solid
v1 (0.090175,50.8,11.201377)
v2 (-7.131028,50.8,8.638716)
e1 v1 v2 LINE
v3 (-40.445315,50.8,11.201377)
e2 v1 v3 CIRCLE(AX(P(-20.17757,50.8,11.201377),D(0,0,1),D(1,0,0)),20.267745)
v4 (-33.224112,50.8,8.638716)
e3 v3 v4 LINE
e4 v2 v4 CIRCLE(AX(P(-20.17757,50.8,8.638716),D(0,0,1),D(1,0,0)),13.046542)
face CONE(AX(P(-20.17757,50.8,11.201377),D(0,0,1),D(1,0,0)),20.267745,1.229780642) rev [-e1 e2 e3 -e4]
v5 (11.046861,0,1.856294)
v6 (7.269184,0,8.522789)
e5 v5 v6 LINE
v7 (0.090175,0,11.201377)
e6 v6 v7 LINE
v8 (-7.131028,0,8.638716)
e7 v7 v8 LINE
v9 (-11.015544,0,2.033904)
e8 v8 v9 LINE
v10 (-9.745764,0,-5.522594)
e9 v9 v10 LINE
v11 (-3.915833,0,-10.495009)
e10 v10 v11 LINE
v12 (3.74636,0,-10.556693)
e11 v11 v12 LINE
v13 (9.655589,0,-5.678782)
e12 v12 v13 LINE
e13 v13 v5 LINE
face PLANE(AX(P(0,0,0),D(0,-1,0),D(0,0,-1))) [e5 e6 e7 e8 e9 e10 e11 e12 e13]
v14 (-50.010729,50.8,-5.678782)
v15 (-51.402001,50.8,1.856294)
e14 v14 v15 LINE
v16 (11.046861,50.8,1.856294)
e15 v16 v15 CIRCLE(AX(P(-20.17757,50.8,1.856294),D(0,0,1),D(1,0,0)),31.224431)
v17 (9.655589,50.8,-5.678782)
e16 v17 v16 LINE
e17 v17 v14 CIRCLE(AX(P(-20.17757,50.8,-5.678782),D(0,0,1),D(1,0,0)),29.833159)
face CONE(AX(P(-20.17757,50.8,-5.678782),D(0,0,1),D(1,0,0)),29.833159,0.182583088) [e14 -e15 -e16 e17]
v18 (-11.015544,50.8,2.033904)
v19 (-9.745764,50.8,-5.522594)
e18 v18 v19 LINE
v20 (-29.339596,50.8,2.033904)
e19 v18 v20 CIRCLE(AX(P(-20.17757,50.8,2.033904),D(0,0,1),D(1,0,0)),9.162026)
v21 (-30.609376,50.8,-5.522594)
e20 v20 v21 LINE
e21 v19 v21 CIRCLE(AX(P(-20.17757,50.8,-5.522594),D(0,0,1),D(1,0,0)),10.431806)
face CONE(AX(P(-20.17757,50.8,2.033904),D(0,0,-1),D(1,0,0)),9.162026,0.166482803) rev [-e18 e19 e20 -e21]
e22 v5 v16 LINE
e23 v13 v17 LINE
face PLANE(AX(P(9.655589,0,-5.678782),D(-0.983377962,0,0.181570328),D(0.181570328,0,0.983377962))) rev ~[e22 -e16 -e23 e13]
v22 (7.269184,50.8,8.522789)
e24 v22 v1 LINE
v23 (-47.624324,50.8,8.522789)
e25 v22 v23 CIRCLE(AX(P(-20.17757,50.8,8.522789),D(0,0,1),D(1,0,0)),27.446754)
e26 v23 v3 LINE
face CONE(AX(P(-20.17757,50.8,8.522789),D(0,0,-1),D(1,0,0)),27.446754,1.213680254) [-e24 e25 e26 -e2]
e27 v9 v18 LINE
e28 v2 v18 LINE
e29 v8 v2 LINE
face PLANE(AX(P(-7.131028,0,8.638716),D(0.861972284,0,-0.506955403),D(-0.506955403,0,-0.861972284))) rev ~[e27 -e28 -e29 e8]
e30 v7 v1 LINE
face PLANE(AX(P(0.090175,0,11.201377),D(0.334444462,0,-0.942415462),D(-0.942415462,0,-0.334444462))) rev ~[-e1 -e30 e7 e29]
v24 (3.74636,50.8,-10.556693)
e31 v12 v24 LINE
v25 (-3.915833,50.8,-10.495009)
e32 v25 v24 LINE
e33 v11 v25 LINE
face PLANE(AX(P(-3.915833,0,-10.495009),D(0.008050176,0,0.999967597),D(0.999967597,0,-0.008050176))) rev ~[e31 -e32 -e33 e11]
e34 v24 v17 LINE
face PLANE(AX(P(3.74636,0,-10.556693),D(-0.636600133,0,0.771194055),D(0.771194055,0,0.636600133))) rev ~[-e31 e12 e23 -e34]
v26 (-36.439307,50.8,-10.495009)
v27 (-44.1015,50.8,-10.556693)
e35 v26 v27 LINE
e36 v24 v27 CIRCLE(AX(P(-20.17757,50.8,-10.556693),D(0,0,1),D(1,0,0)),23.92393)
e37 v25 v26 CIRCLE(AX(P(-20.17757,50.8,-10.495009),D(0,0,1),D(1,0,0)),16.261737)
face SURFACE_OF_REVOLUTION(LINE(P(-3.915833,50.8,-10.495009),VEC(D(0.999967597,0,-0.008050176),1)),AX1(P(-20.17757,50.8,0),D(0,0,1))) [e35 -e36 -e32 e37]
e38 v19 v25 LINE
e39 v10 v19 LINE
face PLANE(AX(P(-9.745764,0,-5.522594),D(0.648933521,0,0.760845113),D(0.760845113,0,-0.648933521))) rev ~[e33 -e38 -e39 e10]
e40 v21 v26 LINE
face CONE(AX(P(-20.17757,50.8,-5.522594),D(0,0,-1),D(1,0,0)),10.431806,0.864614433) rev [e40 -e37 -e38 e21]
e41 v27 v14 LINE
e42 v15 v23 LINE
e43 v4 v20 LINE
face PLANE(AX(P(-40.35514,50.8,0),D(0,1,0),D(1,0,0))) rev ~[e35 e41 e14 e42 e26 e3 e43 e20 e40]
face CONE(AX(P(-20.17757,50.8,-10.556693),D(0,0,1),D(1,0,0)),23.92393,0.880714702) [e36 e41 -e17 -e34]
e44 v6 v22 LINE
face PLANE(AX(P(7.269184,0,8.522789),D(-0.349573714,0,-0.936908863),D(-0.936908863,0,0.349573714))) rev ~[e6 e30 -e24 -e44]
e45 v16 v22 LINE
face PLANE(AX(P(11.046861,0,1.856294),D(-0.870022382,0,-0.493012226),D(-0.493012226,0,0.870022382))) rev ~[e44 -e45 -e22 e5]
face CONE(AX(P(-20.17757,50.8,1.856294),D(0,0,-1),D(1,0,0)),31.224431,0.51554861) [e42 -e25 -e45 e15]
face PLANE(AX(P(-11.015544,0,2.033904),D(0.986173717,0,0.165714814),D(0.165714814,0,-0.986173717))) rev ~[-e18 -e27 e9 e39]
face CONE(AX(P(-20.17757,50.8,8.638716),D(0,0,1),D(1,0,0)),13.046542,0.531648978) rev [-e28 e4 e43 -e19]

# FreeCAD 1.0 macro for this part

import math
import FreeCAD as App
import Part
import Sketcher

V = App.Vector
Q = App.Units.Quantity

doc = App.newDocument("Part")
body = doc.addObject("PartDesign::Body", "Body")

# Sketch on XZ plane
sketch1 = body.newObject("Sketcher::SketchObject", "Sketch")
sketch1.AttachmentSupport = (doc.getObject("XZ_Plane"), [""])
sketch1.MapMode = "FlatFace"
sketch1.addGeometry(Part.LineSegment(V(11.046861, 1.856294, 0), V(7.269184, 8.522789, 0)), False)
sketch1.addGeometry(Part.LineSegment(V(7.269184, 8.522789, 0), V(0.090175, 11.201377, 0)), False)
sketch1.addGeometry(Part.LineSegment(V(0.090175, 11.201377, 0), V(-7.131028, 8.638716, 0)), False)
sketch1.addGeometry(Part.LineSegment(V(-7.131028, 8.638716, 0), V(-11.015544, 2.033904, 0)), False)
sketch1.addGeometry(Part.LineSegment(V(-11.015544, 2.033904, 0), V(-9.745764, -5.522594, 0)), False)
sketch1.addGeometry(Part.LineSegment(V(-9.745764, -5.522594, 0), V(-3.915833, -10.495009, 0)), False)
sketch1.addGeometry(Part.LineSegment(V(-3.915833, -10.495009, 0), V(3.74636, -10.556693, 0)), False)
sketch1.addGeometry(Part.LineSegment(V(3.74636, -10.556693, 0), V(9.655589, -5.678782, 0)), False)
sketch1.addGeometry(Part.LineSegment(V(9.655589, -5.678782, 0), V(11.046861, 1.856294, 0)), False)
sketch1.addConstraint(Sketcher.Constraint("Coincident", 0, 2, 1, 1))
sketch1.addConstraint(Sketcher.Constraint("Coincident", 1, 2, 2, 1))
sketch1.addConstraint(Sketcher.Constraint("Coincident", 2, 2, 3, 1))
sketch1.addConstraint(Sketcher.Constraint("Coincident", 3, 2, 4, 1))
sketch1.addConstraint(Sketcher.Constraint("Coincident", 4, 2, 5, 1))
sketch1.addConstraint(Sketcher.Constraint("Coincident", 5, 2, 6, 1))
sketch1.addConstraint(Sketcher.Constraint("Coincident", 6, 2, 7, 1))
sketch1.addConstraint(Sketcher.Constraint("Coincident", 7, 2, 8, 1))
sketch1.addConstraint(Sketcher.Constraint("Coincident", 8, 2, 0, 1))
sketch1.addConstraint(Sketcher.Constraint("Equal", 0, 1))
sketch1.addConstraint(Sketcher.Constraint("Equal", 1, 2))
sketch1.addConstraint(Sketcher.Constraint("Equal", 2, 3))
sketch1.addConstraint(Sketcher.Constraint("Equal", 3, 4))
sketch1.addConstraint(Sketcher.Constraint("Equal", 4, 5))
sketch1.addConstraint(Sketcher.Constraint("Equal", 5, 6))
sketch1.addConstraint(Sketcher.Constraint("Equal", 6, 7))
sketch1.addConstraint(Sketcher.Constraint("Equal", 7, 8))
sketch1.addConstraint(Sketcher.Constraint("DistanceY", 4, 2, 3, 2, Q("0.2974999 in")))
sketch1.addConstraint(Sketcher.Constraint("DistanceY", 6, 2, 4, 2, 5.034099))
sketch1.addConstraint(Sketcher.Constraint("DistanceX", 6, 2, 8, 2, 7.300501))
sketch1.addConstraint(Sketcher.Constraint("Distance", 0, 7.662441))
sketch1.addConstraint(Sketcher.Constraint("DistanceY", -1, 1, 0, 2, 8.522789))
sketch1.addConstraint(Sketcher.Constraint("DistanceY", 5, 2, -1, 1, 10.495009))
sketch1.addConstraint(Sketcher.Constraint("DistanceX", -1, 1, 6, 2, 3.74636))
sketch1.addConstraint(Sketcher.Constraint("DistanceX", -1, 1, 7, 2, 9.655589))
sketch1.addConstraint(Sketcher.Constraint("DistanceX", 1, 2, 0, 2, 7.179009))
sketch1.addConstraint(Sketcher.Constraint("DistanceY", 2, 2, 1, 2, 2.562661))

# Sketch on XY plane
sketch2 = body.newObject("Sketcher::SketchObject", "Sketch001")
sketch2.AttachmentSupport = (doc.getObject("XY_Plane"), [""])
sketch2.MapMode = "FlatFace"
sketch2.addGeometry(Part.LineSegment(V(0, 0, 0), V(0, 50.8, 0)), False)
sketch2.addGeometry(Part.ArcOfCircle(Part.Circle(V(-20.17757, 50.8, 0), V(0, 0, 1), 20.17757), math.radians(0), math.radians(180)), False)
sketch2.addConstraint(Sketcher.Constraint("Tangent", 0, 2, 1, 1))
sketch2.addConstraint(Sketcher.Constraint("Vertical", 0))
sketch2.addConstraint(Sketcher.Constraint("Coincident", 0, 1, -1, 1))
sketch2.addConstraint(Sketcher.Constraint("Horizontal", 0, 2, 1, 2))
sketch2.addConstraint(Sketcher.Constraint("DistanceY", 0, 1, 0, 2, Q("2 in")))
sketch2.addConstraint(Sketcher.Constraint("Radius", 1, 20.17757))
doc.recompute()

additivepipe = body.newObject("PartDesign::AdditivePipe", "AdditivePipe")
additivepipe.Profile = sketch1
additivepipe.Spine = (sketch2, ["Edge1", "Edge2"])

doc.recompute()
